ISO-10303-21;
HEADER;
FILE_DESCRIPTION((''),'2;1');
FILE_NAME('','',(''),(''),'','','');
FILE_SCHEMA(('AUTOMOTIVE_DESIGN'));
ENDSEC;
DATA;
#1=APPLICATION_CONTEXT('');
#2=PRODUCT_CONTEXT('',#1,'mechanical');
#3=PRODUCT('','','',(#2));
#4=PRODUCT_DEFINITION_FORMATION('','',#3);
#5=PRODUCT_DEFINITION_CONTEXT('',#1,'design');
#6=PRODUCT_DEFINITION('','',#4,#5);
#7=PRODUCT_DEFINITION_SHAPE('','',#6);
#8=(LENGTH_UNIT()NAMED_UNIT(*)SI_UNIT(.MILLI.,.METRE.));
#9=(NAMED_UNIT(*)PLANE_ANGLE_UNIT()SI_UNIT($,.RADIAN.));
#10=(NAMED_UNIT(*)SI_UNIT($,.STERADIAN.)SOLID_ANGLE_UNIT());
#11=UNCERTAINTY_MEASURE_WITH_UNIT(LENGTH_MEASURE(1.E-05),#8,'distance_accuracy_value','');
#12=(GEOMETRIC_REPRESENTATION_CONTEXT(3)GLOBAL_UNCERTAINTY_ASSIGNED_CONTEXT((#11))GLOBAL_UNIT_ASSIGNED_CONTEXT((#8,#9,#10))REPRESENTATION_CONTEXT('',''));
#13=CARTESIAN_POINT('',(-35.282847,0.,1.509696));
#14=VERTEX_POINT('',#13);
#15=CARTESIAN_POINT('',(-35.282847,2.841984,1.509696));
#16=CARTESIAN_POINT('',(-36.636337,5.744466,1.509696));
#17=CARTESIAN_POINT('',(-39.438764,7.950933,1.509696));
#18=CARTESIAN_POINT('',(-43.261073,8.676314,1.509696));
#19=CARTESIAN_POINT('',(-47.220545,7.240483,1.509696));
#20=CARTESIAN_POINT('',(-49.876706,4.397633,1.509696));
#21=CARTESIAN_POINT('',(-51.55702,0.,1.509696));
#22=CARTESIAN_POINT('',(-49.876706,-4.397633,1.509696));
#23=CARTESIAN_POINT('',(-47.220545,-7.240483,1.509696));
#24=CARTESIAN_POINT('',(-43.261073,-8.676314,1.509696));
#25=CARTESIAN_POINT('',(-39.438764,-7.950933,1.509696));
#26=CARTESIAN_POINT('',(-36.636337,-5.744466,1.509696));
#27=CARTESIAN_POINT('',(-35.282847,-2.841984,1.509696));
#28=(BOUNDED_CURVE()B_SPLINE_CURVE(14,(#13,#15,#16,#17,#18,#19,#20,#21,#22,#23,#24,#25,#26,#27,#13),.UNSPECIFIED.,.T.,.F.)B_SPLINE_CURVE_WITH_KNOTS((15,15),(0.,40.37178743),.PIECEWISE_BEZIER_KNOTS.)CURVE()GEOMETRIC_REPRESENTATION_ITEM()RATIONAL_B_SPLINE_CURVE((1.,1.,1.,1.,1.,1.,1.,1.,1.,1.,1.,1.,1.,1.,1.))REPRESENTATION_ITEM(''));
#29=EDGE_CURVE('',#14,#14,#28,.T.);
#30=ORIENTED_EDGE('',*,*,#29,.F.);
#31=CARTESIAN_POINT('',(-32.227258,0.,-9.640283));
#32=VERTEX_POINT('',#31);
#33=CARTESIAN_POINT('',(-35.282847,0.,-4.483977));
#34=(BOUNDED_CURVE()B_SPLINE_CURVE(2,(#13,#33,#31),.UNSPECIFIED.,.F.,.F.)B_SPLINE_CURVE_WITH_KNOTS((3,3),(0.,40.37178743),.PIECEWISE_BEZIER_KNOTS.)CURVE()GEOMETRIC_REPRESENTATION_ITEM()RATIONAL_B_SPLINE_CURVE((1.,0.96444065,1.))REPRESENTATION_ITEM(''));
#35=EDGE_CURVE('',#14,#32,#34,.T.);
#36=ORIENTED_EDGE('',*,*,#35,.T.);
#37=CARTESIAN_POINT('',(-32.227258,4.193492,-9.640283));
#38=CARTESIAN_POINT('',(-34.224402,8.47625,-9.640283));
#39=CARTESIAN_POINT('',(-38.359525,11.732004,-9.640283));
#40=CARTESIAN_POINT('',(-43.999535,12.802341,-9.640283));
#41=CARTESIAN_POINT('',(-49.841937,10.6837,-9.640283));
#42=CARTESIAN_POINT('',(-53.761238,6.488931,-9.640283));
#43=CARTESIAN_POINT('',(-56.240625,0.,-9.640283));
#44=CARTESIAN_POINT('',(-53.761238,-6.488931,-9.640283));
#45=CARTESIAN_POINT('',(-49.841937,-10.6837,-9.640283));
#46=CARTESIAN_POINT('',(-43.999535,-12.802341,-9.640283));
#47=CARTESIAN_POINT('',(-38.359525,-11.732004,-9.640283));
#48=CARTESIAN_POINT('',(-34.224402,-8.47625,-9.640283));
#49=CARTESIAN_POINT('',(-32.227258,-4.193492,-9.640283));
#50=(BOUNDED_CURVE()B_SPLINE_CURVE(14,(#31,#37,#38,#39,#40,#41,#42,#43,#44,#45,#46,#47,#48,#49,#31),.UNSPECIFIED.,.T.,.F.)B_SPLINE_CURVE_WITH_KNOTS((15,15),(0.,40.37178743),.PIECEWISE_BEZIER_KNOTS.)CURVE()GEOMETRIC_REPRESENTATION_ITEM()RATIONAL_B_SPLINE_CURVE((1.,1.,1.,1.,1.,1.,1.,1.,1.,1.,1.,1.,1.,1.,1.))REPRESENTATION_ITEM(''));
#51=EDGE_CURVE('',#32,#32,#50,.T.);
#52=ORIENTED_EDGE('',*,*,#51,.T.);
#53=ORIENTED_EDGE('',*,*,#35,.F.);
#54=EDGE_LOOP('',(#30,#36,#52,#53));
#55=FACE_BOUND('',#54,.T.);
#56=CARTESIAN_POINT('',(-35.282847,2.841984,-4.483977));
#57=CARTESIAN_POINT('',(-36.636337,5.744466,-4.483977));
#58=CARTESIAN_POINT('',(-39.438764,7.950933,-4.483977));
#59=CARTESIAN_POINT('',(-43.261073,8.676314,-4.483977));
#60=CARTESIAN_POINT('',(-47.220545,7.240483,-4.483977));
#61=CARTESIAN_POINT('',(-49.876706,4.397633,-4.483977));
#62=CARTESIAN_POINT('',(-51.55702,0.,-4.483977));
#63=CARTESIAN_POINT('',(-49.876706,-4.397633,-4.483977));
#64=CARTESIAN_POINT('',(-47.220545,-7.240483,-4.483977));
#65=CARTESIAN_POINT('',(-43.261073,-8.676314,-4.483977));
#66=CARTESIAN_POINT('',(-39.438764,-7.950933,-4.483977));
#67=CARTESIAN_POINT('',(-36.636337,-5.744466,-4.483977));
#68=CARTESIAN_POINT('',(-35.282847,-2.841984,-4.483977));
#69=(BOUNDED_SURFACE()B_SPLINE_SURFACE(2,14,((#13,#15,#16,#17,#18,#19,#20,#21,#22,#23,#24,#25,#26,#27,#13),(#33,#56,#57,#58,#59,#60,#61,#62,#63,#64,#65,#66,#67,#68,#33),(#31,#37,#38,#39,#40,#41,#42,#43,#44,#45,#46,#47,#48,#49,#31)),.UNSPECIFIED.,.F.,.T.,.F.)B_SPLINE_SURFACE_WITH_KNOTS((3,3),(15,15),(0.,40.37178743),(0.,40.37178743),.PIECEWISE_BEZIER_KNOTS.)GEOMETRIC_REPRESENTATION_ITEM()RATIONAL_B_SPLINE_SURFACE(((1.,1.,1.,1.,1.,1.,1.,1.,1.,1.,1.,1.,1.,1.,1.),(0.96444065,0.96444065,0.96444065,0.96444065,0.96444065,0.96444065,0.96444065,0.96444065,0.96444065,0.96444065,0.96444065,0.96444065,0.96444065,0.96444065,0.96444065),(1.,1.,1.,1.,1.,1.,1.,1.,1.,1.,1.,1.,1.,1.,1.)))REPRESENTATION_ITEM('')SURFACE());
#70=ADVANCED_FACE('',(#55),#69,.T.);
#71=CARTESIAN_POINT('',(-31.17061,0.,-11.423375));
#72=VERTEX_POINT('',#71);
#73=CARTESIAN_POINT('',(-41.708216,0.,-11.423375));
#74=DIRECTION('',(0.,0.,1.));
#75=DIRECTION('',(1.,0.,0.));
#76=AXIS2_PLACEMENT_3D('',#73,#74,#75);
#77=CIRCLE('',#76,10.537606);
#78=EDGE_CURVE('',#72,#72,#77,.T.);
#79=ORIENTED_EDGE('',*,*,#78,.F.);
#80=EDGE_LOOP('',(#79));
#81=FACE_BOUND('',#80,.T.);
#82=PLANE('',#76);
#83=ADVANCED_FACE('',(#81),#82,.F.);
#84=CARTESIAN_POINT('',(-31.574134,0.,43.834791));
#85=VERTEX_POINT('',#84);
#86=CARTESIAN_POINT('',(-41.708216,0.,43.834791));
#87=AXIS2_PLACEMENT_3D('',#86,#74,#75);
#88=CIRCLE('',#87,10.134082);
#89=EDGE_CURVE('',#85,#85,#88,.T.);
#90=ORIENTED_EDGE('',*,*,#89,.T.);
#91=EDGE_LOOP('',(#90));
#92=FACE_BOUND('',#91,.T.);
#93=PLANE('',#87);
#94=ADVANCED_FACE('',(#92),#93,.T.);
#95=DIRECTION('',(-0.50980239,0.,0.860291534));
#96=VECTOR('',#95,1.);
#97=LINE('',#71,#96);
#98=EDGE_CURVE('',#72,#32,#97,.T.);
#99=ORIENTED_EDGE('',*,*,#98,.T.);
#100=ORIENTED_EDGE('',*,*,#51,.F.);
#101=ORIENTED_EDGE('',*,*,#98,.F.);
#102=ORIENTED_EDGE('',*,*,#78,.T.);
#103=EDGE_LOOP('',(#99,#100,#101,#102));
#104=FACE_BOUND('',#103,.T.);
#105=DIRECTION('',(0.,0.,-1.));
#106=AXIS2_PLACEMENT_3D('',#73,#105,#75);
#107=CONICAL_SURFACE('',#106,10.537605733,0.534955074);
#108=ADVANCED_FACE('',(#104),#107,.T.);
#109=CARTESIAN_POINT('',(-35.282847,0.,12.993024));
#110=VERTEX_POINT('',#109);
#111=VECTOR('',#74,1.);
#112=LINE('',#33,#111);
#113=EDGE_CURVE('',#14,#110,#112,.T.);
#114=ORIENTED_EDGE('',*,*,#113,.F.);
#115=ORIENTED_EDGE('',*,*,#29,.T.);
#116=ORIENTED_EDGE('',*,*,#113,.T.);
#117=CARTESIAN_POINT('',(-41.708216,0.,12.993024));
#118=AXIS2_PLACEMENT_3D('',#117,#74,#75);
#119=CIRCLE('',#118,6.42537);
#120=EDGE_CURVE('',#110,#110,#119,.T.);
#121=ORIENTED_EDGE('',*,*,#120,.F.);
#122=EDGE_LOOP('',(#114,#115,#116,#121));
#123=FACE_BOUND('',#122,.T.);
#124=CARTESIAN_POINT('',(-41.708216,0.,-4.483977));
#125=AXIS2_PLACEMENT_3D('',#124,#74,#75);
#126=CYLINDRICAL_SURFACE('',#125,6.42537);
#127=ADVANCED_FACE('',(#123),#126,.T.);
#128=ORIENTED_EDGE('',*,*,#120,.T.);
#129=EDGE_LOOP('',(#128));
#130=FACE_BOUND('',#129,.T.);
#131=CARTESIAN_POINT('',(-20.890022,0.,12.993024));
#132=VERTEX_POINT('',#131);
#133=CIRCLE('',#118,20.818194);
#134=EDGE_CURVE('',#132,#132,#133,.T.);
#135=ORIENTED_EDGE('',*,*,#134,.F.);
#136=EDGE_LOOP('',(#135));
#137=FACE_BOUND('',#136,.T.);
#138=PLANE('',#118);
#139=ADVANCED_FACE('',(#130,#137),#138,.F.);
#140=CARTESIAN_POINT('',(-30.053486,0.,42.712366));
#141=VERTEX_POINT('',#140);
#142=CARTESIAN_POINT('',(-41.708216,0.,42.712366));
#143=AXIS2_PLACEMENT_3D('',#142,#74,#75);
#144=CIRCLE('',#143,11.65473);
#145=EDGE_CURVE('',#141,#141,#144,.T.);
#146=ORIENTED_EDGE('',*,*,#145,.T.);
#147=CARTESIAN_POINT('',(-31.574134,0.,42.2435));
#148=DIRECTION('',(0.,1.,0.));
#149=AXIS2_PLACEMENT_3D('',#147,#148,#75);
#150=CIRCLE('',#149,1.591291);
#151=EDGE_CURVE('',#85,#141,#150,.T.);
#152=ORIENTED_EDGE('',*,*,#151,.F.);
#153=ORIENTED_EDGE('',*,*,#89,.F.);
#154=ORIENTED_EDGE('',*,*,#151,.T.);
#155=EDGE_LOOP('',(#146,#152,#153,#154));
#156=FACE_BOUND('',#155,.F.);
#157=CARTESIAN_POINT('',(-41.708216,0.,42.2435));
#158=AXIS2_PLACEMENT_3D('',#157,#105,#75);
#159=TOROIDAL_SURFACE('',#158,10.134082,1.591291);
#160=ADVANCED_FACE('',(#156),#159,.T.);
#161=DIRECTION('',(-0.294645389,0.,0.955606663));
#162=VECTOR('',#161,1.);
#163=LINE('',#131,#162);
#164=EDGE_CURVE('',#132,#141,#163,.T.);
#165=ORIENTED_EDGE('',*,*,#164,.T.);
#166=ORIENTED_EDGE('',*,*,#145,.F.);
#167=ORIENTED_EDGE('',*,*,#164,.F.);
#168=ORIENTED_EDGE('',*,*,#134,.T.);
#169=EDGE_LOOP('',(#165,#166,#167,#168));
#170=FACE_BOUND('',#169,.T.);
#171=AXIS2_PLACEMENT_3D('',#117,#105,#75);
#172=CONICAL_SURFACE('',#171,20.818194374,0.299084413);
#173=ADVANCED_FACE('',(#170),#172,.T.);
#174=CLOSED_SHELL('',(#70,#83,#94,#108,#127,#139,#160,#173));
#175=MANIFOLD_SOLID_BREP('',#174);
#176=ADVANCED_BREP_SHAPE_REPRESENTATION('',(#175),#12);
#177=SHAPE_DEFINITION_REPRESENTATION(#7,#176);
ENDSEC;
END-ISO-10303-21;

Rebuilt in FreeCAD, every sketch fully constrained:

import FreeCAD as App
import Part
import Sketcher

V = App.Vector


def edges_at(feature, points):
    """Names of the edges that pass closest to the given points."""
    edges = feature.Shape.Edges
    near = lambda p: min(range(len(edges)), key=lambda i: edges[i].distToShape(Part.Vertex(*p))[0])
    return sorted({f"Edge{near(p) + 1}" for p in points})

doc = App.newDocument("Part")
body = doc.addObject("PartDesign::Body", "Body")

# Sketch on XZ plane
sketch1 = doc.addObject("Sketcher::SketchObject", "Sketch")
body.addObject(sketch1)
sketch1.AttachmentSupport = (doc.XZ_Plane, [""])
sketch1.MapMode = "FlatFace"
sketch1.addGeometry(Part.LineSegment(V(-30, 44, 0), V(-42, 44, 0)), False)
sketch1.addGeometry(Part.LineSegment(V(-42, 44, 0), V(-42, -11, 0)), False)
sketch1.addGeometry(Part.LineSegment(V(-42, -11, 0), V(-31, -11, 0)), False)
sketch1.addGeometry(Part.LineSegment(V(-31, -11, 0), V(-35, -4, 0)), False)
sketch1.addGeometry(Part.LineSegment(V(-35, -4, 0), V(-35, 13, 0)), False)
sketch1.addGeometry(Part.LineSegment(V(-35, 13, 0), V(-21, 13, 0)), False)
sketch1.addGeometry(Part.LineSegment(V(-21, 13, 0), V(-30, 44, 0)), False)
sketch1.addGeometry(Part.LineSegment(V(-42, -11, 0), V(-42, 44, 0)), True)  # axis
sketch1.addConstraint(Sketcher.Constraint("Coincident", 0, 2, 1, 1))
sketch1.addConstraint(Sketcher.Constraint("Coincident", 1, 2, 2, 1))
sketch1.addConstraint(Sketcher.Constraint("Coincident", 2, 2, 3, 1))
sketch1.addConstraint(Sketcher.Constraint("Coincident", 3, 2, 4, 1))
sketch1.addConstraint(Sketcher.Constraint("Coincident", 4, 2, 5, 1))
sketch1.addConstraint(Sketcher.Constraint("Coincident", 5, 2, 6, 1))
sketch1.addConstraint(Sketcher.Constraint("Coincident", 6, 2, 0, 1))
sketch1.addConstraint(Sketcher.Constraint("Horizontal", 0))
sketch1.addConstraint(Sketcher.Constraint("Vertical", 1))
sketch1.addConstraint(Sketcher.Constraint("Horizontal", 2))
sketch1.addConstraint(Sketcher.Constraint("Vertical", 4))
sketch1.addConstraint(Sketcher.Constraint("Horizontal", 5))
sketch1.addConstraint(Sketcher.Constraint("Vertical", 7))
sketch1.addConstraint(Sketcher.Constraint("Coincident", 7, 1, 1, 2))
sketch1.addConstraint(Sketcher.Constraint("Horizontal", 6, 2, 7, 2))
sketch1.addConstraint(Sketcher.Constraint("DistanceY", 4, 1, 4, 2, 17.477001))
sketch1.addConstraint(Sketcher.Constraint("DistanceX", 0, 2, 0, 1, 11.30865))
sketch1.addConstraint(Sketcher.Constraint("DistanceY", 2, 2, 3, 2, 6.939399))
sketch1.addConstraint(Sketcher.Constraint("Distance", 6, 32.274541))
sketch1.addConstraint(Sketcher.Constraint("DistanceX", 2, 1, 2, 2, 10.537606))
sketch1.addConstraint(Sketcher.Constraint("DistanceX", 5, 1, 5, 2, 14.392825))
sketch1.addConstraint(Sketcher.Constraint("DistanceY", 1, 2, 1, 1, 55.258166))
sketch1.addConstraint(Sketcher.Constraint("DistanceY", -1, 1, 0, 2, 43.834791))
sketch1.addConstraint(Sketcher.Constraint("DistanceX", 2, 2, -1, 1, 31.17061))
revolution = doc.addObject("PartDesign::Revolution", "Revolution")
body.addObject(revolution)
revolution.Profile = sketch1
revolution.ReferenceAxis = (sketch1, ["Axis0"])
revolution.Angle = 360
doc.recompute()

fillet = doc.addObject("PartDesign::Fillet", "Fillet")
body.addObject(fillet)
fillet.Base = (revolution, edges_at(revolution, [(-53.017, 0, 43.835)]))
fillet.Radius = 1.591291
doc.recompute()

fillet2 = doc.addObject("PartDesign::Fillet", "Fillet001")
body.addObject(fillet2)
fillet2.Base = (fillet, edges_at(fillet, [(-48.134, 0, -4.484)]))
fillet2.Radius = 21.87118

doc.recompute()
